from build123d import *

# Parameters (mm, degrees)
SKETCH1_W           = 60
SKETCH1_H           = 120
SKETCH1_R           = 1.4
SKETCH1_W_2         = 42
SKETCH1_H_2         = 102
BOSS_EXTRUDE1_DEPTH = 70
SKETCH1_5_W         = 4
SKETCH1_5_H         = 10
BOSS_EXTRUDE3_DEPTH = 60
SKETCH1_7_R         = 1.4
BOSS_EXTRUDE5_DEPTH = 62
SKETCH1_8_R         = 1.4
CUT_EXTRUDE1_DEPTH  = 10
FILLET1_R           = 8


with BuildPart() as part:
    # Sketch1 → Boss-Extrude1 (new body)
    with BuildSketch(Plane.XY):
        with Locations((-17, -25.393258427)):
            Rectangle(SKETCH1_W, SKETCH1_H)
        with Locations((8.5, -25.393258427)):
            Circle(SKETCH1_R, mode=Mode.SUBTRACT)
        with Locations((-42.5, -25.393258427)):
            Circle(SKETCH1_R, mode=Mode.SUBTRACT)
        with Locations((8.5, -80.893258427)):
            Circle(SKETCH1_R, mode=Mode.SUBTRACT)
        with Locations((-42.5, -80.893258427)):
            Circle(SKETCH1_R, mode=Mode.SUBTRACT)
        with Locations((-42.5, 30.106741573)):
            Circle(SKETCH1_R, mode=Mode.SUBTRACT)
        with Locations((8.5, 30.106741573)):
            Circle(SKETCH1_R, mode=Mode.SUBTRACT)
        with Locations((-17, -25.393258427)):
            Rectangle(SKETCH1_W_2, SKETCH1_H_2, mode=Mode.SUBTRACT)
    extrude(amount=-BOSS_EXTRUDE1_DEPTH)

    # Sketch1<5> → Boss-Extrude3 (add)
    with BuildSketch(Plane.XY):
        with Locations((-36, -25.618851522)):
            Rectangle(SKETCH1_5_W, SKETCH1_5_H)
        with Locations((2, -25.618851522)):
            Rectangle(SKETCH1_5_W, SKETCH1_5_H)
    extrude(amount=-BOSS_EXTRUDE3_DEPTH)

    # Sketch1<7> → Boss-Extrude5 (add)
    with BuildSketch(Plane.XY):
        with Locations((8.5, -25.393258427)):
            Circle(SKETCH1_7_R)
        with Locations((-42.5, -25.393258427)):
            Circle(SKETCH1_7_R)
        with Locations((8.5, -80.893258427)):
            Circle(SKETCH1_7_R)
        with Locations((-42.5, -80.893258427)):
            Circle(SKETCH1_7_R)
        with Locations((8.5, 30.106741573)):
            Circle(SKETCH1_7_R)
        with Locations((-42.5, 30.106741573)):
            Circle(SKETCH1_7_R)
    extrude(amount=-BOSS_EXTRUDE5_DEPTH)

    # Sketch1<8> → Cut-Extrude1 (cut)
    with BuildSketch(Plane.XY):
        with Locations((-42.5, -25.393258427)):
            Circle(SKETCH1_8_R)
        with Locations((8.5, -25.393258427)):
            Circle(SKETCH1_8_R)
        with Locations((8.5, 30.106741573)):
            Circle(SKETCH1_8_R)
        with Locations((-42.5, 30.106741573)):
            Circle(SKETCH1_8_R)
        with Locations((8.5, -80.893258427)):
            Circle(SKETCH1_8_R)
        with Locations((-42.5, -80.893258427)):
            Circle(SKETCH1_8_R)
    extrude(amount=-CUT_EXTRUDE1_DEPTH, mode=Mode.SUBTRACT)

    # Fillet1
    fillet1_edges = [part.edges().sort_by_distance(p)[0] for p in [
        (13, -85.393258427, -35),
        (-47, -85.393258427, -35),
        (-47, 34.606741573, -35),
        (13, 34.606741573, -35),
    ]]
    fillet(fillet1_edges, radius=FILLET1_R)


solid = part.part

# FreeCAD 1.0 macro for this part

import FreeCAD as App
import Part
import Sketcher

V = App.Vector


def edges_at(feature, points):
    """Names of the edges that pass closest to the given points."""
    edges = feature.Shape.Edges
    near = lambda p: min(range(len(edges)), key=lambda i: edges[i].distToShape(Part.Vertex(*p))[0])
    return sorted({f"Edge{near(p) + 1}" for p in points})

doc = App.newDocument("Part")
params = doc.addObject("Spreadsheet::Sheet", "Params")
for row, (alias, value) in enumerate([
    ("sketch1_diameter", "2.8 mm"),
    ("sketch1_width", "60 mm"),
    ("sketch1_width2", "42 mm"),
    ("sketch1_height", "120 mm"),
    ("sketch1_height2", "102 mm"),
    ("pad1_length", "70 mm"),
    ("sketch2_width", "4 mm"),
    ("sketch2_height", "10 mm"),
    ("pad2_length", "60 mm"),
    ("sketch3_diameter", "2.8 mm"),
    ("pad3_length", "62 mm"),
    ("sketch4_diameter", "2.8 mm"),
    ("pocket1_length", "10 mm"),
    ("fillet_radius", "8 mm"),
], start=1):
    params.set(f"A{row}", alias)
    params.set(f"B{row}", "=" + value)
    params.setAlias(f"B{row}", alias)

body = doc.addObject("PartDesign::Body", "Body")

sketch1 = body.newObject("Sketcher::SketchObject", "Sketch")
sketch1.AttachmentSupport = (doc.getObject("XY_Plane"), [""])
sketch1.MapMode = "FlatFace"
sketch1.addGeometry(Part.LineSegment(V(-47, 34.6, 0), V(-47, -85.4, 0)), False)
sketch1.addGeometry(Part.LineSegment(V(-47, -85.4, 0), V(13, -85.4, 0)), False)
sketch1.addGeometry(Part.LineSegment(V(13, -85.4, 0), V(13, 34.6, 0)), False)
sketch1.addGeometry(Part.LineSegment(V(13, 34.6, 0), V(-47, 34.6, 0)), False)
sketch1.addGeometry(Part.Circle(V(-42.5, -80.9, 0), V(0, 0, 1), 1.4), False)
sketch1.addGeometry(Part.Circle(V(8.5, -80.9, 0), V(0, 0, 1), 1.4), False)
sketch1.addGeometry(Part.Circle(V(-42.5, -25.4, 0), V(0, 0, 1), 1.4), False)
sketch1.addGeometry(Part.Circle(V(-42.5, 30.1, 0), V(0, 0, 1), 1.4), False)
sketch1.addGeometry(Part.LineSegment(V(4, -76.4, 0), V(-38, -76.4, 0)), False)
sketch1.addGeometry(Part.LineSegment(V(-38, -76.4, 0), V(-38, 25.6, 0)), False)
sketch1.addGeometry(Part.LineSegment(V(-38, 25.6, 0), V(4, 25.6, 0)), False)
sketch1.addGeometry(Part.LineSegment(V(4, 25.6, 0), V(4, -76.4, 0)), False)
sketch1.addGeometry(Part.Circle(V(8.5, -25.4, 0), V(0, 0, 1), 1.4), False)
sketch1.addGeometry(Part.Circle(V(8.5, 30.1, 0), V(0, 0, 1), 1.4), False)
sketch1.addConstraint(Sketcher.Constraint("Coincident", 0, 2, 1, 1))
sketch1.addConstraint(Sketcher.Constraint("Coincident", 1, 2, 2, 1))
sketch1.addConstraint(Sketcher.Constraint("Coincident", 2, 2, 3, 1))
sketch1.addConstraint(Sketcher.Constraint("Coincident", 3, 2, 0, 1))
sketch1.addConstraint(Sketcher.Constraint("Coincident", 8, 2, 9, 1))
sketch1.addConstraint(Sketcher.Constraint("Coincident", 9, 2, 10, 1))
sketch1.addConstraint(Sketcher.Constraint("Coincident", 10, 2, 11, 1))
sketch1.addConstraint(Sketcher.Constraint("Coincident", 11, 2, 8, 1))
sketch1.addConstraint(Sketcher.Constraint("Vertical", 0))
sketch1.addConstraint(Sketcher.Constraint("Horizontal", 1))
sketch1.addConstraint(Sketcher.Constraint("Vertical", 2))
sketch1.addConstraint(Sketcher.Constraint("Horizontal", 3))
sketch1.addConstraint(Sketcher.Constraint("Horizontal", 8))
sketch1.addConstraint(Sketcher.Constraint("Vertical", 9))
sketch1.addConstraint(Sketcher.Constraint("Horizontal", 10))
sketch1.addConstraint(Sketcher.Constraint("Vertical", 11))
sketch1.addConstraint(Sketcher.Constraint("Equal", 4, 5))
sketch1.addConstraint(Sketcher.Constraint("Equal", 5, 6))
sketch1.addConstraint(Sketcher.Constraint("Equal", 6, 7))
sketch1.addConstraint(Sketcher.Constraint("Equal", 7, 12))
sketch1.addConstraint(Sketcher.Constraint("Equal", 12, 13))
sketch1.addConstraint(Sketcher.Constraint("Horizontal", 4, 3, 5, 3))
sketch1.addConstraint(Sketcher.Constraint("Horizontal", 6, 3, 12, 3))
sketch1.addConstraint(Sketcher.Constraint("Horizontal", 7, 3, 13, 3))
sketch1.addConstraint(Sketcher.Constraint("Vertical", 4, 3, 6, 3))
sketch1.addConstraint(Sketcher.Constraint("Vertical", 6, 3, 7, 3))
sketch1.addConstraint(Sketcher.Constraint("Vertical", 5, 3, 12, 3))
sketch1.addConstraint(Sketcher.Constraint("Vertical", 12, 3, 13, 3))
sketch1.addConstraint(Sketcher.Constraint("Diameter", 4, 2.8))
sketch1.addConstraint(Sketcher.Constraint("DistanceX", 1, 1, 1, 2, 60.0))
sketch1.addConstraint(Sketcher.Constraint("DistanceX", 8, 2, 8, 1, 42.0))
sketch1.addConstraint(Sketcher.Constraint("DistanceY", 0, 2, 0, 1, 120.0))
sketch1.addConstraint(Sketcher.Constraint("DistanceY", 9, 1, 9, 2, 102.0))
sketch1.addConstraint(Sketcher.Constraint("DistanceX", 0, 2, -1, 1, 47.0))
sketch1.addConstraint(Sketcher.Constraint("DistanceX", 8, 2, -1, 1, 38.0))
sketch1.addConstraint(Sketcher.Constraint("DistanceX", 4, 3, 5, 3, 51.0))
sketch1.addConstraint(Sketcher.Constraint("DistanceY", 4, 3, 7, 3, 111.0))
sketch1.addConstraint(Sketcher.Constraint("DistanceY", 0, 2, 6, 3, 60.0))
sketch1.addConstraint(Sketcher.Constraint("DistanceY", 0, 2, 8, 2, 9.0))
sketch1.addConstraint(Sketcher.Constraint("DistanceX", 4, 3, -1, 1, 42.5))
sketch1.addConstraint(Sketcher.Constraint("DistanceY", 4, 3, 6, 3, 55.5))
sketch1.addConstraint(Sketcher.Constraint("DistanceY", 4, 3, -1, 1, 80.893258))
sketch1.setExpression("Constraints[28]", "Params.sketch1_diameter")
sketch1.setExpression("Constraints[29]", "Params.sketch1_width")
sketch1.setExpression("Constraints[30]", "Params.sketch1_width2")
sketch1.setExpression("Constraints[31]", "Params.sketch1_height")
sketch1.setExpression("Constraints[32]", "Params.sketch1_height2")
pad1 = body.newObject("PartDesign::Pad", "Pad")
pad1.Profile = sketch1
pad1.setExpression("Length", "Params.pad1_length")
pad1.Reversed = True

sketch2 = body.newObject("Sketcher::SketchObject", "Sketch001")
sketch2.AttachmentSupport = (doc.getObject("XY_Plane"), [""])
sketch2.MapMode = "FlatFace"
sketch2.addGeometry(Part.LineSegment(V(-38, -20.6, 0), V(-38, -30.6, 0)), False)
sketch2.addGeometry(Part.LineSegment(V(-38, -30.6, 0), V(-34, -30.6, 0)), False)
sketch2.addGeometry(Part.LineSegment(V(-34, -30.6, 0), V(-34, -20.6, 0)), False)
sketch2.addGeometry(Part.LineSegment(V(-34, -20.6, 0), V(-38, -20.6, 0)), False)
sketch2.addGeometry(Part.LineSegment(V(0, -20.6, 0), V(0, -30.6, 0)), False)
sketch2.addGeometry(Part.LineSegment(V(0, -30.6, 0), V(4, -30.6, 0)), False)
sketch2.addGeometry(Part.LineSegment(V(4, -30.6, 0), V(4, -20.6, 0)), False)
sketch2.addGeometry(Part.LineSegment(V(4, -20.6, 0), V(0, -20.6, 0)), False)
sketch2.addConstraint(Sketcher.Constraint("Coincident", 0, 2, 1, 1))
sketch2.addConstraint(Sketcher.Constraint("Coincident", 1, 2, 2, 1))
sketch2.addConstraint(Sketcher.Constraint("Coincident", 2, 2, 3, 1))
sketch2.addConstraint(Sketcher.Constraint("Coincident", 3, 2, 0, 1))
sketch2.addConstraint(Sketcher.Constraint("Coincident", 4, 2, 5, 1))
sketch2.addConstraint(Sketcher.Constraint("Coincident", 5, 2, 6, 1))
sketch2.addConstraint(Sketcher.Constraint("Coincident", 6, 2, 7, 1))
sketch2.addConstraint(Sketcher.Constraint("Coincident", 7, 2, 4, 1))
sketch2.addConstraint(Sketcher.Constraint("Vertical", 0))
sketch2.addConstraint(Sketcher.Constraint("Horizontal", 1))
sketch2.addConstraint(Sketcher.Constraint("Vertical", 2))
sketch2.addConstraint(Sketcher.Constraint("Horizontal", 3))
sketch2.addConstraint(Sketcher.Constraint("Vertical", 4))
sketch2.addConstraint(Sketcher.Constraint("Horizontal", 5))
sketch2.addConstraint(Sketcher.Constraint("Vertical", 6))
sketch2.addConstraint(Sketcher.Constraint("Horizontal", 7))
sketch2.addConstraint(Sketcher.Constraint("PointOnObject", 4, 2, -2))
sketch2.addConstraint(Sketcher.Constraint("Horizontal", 1, 2, 4, 2))
sketch2.addConstraint(Sketcher.Constraint("Horizontal", 3, 2, 6, 2))
sketch2.addConstraint(Sketcher.Constraint("Equal", 3, 5))
sketch2.addConstraint(Sketcher.Constraint("DistanceX", 1, 1, 1, 2, 4.0))
sketch2.addConstraint(Sketcher.Constraint("DistanceY", 0, 2, 0, 1, 10.0))
sketch2.addConstraint(Sketcher.Constraint("DistanceX", 0, 2, -1, 1, 38.0))
sketch2.addConstraint(Sketcher.Constraint("DistanceY", 0, 2, -1, 1, 30.618852))
sketch2.setExpression("Constraints[20]", "Params.sketch2_width")
sketch2.setExpression("Constraints[21]", "Params.sketch2_height")
pad2 = body.newObject("PartDesign::Pad", "Pad001")
pad2.Profile = sketch2
pad2.setExpression("Length", "Params.pad2_length")
pad2.Reversed = True

sketch3 = body.newObject("Sketcher::SketchObject", "Sketch002")
sketch3.AttachmentSupport = (doc.getObject("XY_Plane"), [""])
sketch3.MapMode = "FlatFace"
sketch3.addGeometry(Part.Circle(V(8.5, -25.4, 0), V(0, 0, 1), 1.4), False)
sketch3.addGeometry(Part.Circle(V(-42.5, -25.4, 0), V(0, 0, 1), 1.4), False)
sketch3.addGeometry(Part.Circle(V(8.5, -80.9, 0), V(0, 0, 1), 1.4), False)
sketch3.addGeometry(Part.Circle(V(-42.5, -80.9, 0), V(0, 0, 1), 1.4), False)
sketch3.addGeometry(Part.Circle(V(8.5, 30.1, 0), V(0, 0, 1), 1.4), False)
sketch3.addGeometry(Part.Circle(V(-42.5, 30.1, 0), V(0, 0, 1), 1.4), False)
sketch3.addConstraint(Sketcher.Constraint("Equal", 0, 1))
sketch3.addConstraint(Sketcher.Constraint("Equal", 1, 2))
sketch3.addConstraint(Sketcher.Constraint("Equal", 2, 3))
sketch3.addConstraint(Sketcher.Constraint("Equal", 3, 4))
sketch3.addConstraint(Sketcher.Constraint("Equal", 4, 5))
sketch3.addConstraint(Sketcher.Constraint("Horizontal", 0, 3, 1, 3))
sketch3.addConstraint(Sketcher.Constraint("Horizontal", 2, 3, 3, 3))
sketch3.addConstraint(Sketcher.Constraint("Horizontal", 4, 3, 5, 3))
sketch3.addConstraint(Sketcher.Constraint("Vertical", 0, 3, 2, 3))
sketch3.addConstraint(Sketcher.Constraint("Vertical", 1, 3, 3, 3))
sketch3.addConstraint(Sketcher.Constraint("Vertical", 2, 3, 4, 3))
sketch3.addConstraint(Sketcher.Constraint("Vertical", 3, 3, 5, 3))
sketch3.addConstraint(Sketcher.Constraint("Diameter", 0, 2.8))
sketch3.addConstraint(Sketcher.Constraint("DistanceX", 1, 3, 0, 3, 51.0))
sketch3.addConstraint(Sketcher.Constraint("DistanceY", 2, 3, 4, 3, 111.0))
sketch3.addConstraint(Sketcher.Constraint("DistanceX", -1, 1, 0, 3, 8.5))
sketch3.addConstraint(Sketcher.Constraint("DistanceY", 2, 3, 0, 3, 55.5))
sketch3.addConstraint(Sketcher.Constraint("DistanceY", 0, 3, -1, 1, 25.393258))
sketch3.setExpression("Constraints[12]", "Params.sketch3_diameter")
pad3 = body.newObject("PartDesign::Pad", "Pad002")
pad3.Profile = sketch3
pad3.setExpression("Length", "Params.pad3_length")
pad3.Reversed = True

sketch4 = body.newObject("Sketcher::SketchObject", "Sketch003")
sketch4.AttachmentSupport = (doc.getObject("XY_Plane"), [""])
sketch4.MapMode = "FlatFace"
sketch4.addGeometry(Part.Circle(V(-42.5, -25.4, 0), V(0, 0, 1), 1.4), False)
sketch4.addGeometry(Part.Circle(V(8.5, -25.4, 0), V(0, 0, 1), 1.4), False)
sketch4.addGeometry(Part.Circle(V(8.5, 30.1, 0), V(0, 0, 1), 1.4), False)
sketch4.addGeometry(Part.Circle(V(-42.5, 30.1, 0), V(0, 0, 1), 1.4), False)
sketch4.addGeometry(Part.Circle(V(8.5, -80.9, 0), V(0, 0, 1), 1.4), False)
sketch4.addGeometry(Part.Circle(V(-42.5, -80.9, 0), V(0, 0, 1), 1.4), False)
sketch4.addConstraint(Sketcher.Constraint("Equal", 0, 1))
sketch4.addConstraint(Sketcher.Constraint("Equal", 1, 2))
sketch4.addConstraint(Sketcher.Constraint("Equal", 2, 3))
sketch4.addConstraint(Sketcher.Constraint("Equal", 3, 4))
sketch4.addConstraint(Sketcher.Constraint("Equal", 4, 5))
sketch4.addConstraint(Sketcher.Constraint("Horizontal", 0, 3, 1, 3))
sketch4.addConstraint(Sketcher.Constraint("Horizontal", 2, 3, 3, 3))
sketch4.addConstraint(Sketcher.Constraint("Horizontal", 4, 3, 5, 3))
sketch4.addConstraint(Sketcher.Constraint("Vertical", 1, 3, 2, 3))
sketch4.addConstraint(Sketcher.Constraint("Vertical", 0, 3, 3, 3))
sketch4.addConstraint(Sketcher.Constraint("Vertical", 2, 3, 4, 3))
sketch4.addConstraint(Sketcher.Constraint("Vertical", 3, 3, 5, 3))
sketch4.addConstraint(Sketcher.Constraint("Diameter", 0, 2.8))
sketch4.addConstraint(Sketcher.Constraint("DistanceX", 0, 3, 1, 3, 51.0))
sketch4.addConstraint(Sketcher.Constraint("DistanceY", 4, 3, 2, 3, 111.0))
sketch4.addConstraint(Sketcher.Constraint("DistanceX", 0, 3, -1, 1, 42.5))
sketch4.addConstraint(Sketcher.Constraint("DistanceY", 1, 3, 2, 3, 55.5))
sketch4.addConstraint(Sketcher.Constraint("DistanceY", 0, 3, -1, 1, 25.393258))
sketch4.setExpression("Constraints[12]", "Params.sketch4_diameter")
pocket1 = body.newObject("PartDesign::Pocket", "Pocket")
pocket1.Profile = sketch4
pocket1.setExpression("Length", "Params.pocket1_length")
doc.recompute()

fillet = body.newObject("PartDesign::Fillet", "Fillet")
fillet.Base = (pocket1, edges_at(pocket1, [
    (13, -85.393, -35),
    (-47, -85.393, -35),
    (-47, 34.607, -35),
    (13, 34.607, -35),
]))
fillet.setExpression("Radius", "Params.fillet_radius")

doc.recompute()
